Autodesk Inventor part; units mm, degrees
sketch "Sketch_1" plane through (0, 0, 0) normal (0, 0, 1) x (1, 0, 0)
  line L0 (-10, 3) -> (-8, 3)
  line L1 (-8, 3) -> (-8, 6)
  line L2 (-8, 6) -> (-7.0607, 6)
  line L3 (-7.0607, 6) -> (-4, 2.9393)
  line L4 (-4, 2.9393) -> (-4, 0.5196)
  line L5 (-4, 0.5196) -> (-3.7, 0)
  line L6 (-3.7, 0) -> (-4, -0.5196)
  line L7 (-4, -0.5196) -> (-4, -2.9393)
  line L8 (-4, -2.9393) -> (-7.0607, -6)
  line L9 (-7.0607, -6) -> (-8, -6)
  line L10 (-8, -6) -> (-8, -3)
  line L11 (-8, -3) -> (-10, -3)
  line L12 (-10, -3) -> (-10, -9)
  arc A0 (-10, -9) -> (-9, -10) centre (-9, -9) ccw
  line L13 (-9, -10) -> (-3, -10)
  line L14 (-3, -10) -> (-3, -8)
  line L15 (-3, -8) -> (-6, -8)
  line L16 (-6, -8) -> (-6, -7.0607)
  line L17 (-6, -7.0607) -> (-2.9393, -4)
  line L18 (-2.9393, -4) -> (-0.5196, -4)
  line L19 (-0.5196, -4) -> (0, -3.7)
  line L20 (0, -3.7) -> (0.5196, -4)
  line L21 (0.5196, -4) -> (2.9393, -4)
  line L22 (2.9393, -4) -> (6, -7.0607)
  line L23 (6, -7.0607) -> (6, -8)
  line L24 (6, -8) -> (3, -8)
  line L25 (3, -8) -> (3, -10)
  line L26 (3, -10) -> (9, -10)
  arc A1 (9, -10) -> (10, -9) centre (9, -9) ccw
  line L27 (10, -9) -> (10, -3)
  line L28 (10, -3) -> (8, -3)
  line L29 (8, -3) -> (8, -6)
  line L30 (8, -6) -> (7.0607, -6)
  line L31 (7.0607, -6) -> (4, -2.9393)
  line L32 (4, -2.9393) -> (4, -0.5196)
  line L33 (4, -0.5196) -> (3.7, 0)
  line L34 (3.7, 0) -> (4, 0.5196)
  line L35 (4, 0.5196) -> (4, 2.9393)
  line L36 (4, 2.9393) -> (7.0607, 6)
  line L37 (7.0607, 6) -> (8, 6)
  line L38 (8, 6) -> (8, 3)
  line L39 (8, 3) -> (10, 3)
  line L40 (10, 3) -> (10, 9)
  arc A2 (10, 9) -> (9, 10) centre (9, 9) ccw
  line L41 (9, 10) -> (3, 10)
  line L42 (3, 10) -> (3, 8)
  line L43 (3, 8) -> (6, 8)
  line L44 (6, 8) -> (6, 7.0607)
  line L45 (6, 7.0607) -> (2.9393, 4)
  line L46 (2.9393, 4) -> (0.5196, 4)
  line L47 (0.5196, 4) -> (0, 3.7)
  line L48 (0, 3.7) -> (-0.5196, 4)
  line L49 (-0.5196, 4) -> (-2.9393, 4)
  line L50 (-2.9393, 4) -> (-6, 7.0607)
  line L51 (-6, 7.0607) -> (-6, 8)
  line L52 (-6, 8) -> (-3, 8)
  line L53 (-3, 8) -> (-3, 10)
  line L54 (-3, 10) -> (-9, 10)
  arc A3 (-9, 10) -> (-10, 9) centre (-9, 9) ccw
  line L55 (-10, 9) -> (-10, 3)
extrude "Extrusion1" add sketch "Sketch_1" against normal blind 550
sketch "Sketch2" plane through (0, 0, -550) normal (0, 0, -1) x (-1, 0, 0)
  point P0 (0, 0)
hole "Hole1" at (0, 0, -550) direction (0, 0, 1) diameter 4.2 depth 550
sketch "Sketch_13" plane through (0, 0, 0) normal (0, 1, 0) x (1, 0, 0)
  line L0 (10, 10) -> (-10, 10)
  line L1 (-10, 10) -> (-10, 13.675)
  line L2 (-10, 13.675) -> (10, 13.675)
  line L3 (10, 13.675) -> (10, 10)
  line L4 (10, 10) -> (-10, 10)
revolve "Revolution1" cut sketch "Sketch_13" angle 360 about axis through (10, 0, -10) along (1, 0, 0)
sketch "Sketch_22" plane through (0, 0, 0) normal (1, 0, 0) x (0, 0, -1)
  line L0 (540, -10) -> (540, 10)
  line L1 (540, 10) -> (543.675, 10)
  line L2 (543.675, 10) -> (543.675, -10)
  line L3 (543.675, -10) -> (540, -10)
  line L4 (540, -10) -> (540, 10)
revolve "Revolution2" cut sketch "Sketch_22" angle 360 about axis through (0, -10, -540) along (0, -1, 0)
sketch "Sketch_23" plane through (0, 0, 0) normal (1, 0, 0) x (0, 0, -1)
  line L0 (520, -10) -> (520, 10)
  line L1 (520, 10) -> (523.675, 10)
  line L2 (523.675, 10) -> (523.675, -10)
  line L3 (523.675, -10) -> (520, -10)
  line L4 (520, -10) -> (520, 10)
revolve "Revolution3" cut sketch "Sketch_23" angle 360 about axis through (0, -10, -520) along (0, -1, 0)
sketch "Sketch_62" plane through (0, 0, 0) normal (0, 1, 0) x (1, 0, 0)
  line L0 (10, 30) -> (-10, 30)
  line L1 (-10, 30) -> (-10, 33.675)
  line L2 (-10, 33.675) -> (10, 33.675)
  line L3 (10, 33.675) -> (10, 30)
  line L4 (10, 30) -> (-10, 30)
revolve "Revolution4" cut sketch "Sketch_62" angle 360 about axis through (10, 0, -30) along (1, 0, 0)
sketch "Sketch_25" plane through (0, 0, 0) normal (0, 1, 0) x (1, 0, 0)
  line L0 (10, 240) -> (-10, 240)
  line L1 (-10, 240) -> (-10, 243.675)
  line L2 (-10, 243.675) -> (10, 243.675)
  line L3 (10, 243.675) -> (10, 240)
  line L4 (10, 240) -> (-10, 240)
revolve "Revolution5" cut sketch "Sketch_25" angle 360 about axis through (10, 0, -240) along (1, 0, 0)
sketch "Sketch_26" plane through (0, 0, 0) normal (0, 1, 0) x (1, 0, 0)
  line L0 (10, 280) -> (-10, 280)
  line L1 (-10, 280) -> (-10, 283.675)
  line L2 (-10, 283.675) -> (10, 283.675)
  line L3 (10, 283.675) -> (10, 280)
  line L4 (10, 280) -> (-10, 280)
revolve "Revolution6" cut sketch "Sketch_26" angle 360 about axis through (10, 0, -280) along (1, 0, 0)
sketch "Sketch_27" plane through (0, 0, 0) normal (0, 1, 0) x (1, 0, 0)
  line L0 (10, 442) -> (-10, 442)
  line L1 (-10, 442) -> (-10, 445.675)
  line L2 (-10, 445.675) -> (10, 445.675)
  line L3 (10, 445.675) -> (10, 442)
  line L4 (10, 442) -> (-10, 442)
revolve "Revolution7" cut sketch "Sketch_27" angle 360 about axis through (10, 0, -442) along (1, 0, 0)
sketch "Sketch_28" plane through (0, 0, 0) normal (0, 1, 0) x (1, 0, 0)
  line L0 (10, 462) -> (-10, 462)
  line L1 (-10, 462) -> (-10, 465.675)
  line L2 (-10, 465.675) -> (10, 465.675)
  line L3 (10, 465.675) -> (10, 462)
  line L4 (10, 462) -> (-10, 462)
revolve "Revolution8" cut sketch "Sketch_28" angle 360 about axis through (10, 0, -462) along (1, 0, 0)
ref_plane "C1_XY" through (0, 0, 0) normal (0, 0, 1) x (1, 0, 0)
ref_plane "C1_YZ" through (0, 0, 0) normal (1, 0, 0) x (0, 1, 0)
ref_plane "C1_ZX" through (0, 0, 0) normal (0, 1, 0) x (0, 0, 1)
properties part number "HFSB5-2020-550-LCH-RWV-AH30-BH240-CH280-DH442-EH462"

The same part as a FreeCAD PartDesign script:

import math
import FreeCAD as App
import Part
import Sketcher

V = App.Vector
Q = App.Units.Quantity


def add_polygon(sketch, points):
    """Adds a closed chain of lines whose ends are joined by coincident constraints."""
    first, n = sketch.GeometryCount, len(points)
    for a, b in zip(points, points[1:] + points[:1]):
        sketch.addGeometry(Part.LineSegment(App.Vector(*a, 0), App.Vector(*b, 0)), False)
    for i in range(n):
        sketch.addConstraint(Sketcher.Constraint("Coincident", first + i, 2, first + (i + 1) % n, 1))

doc = App.newDocument("Part")
params = doc.addObject("Spreadsheet::Sheet", "Params")
for row, (alias, value) in enumerate([
    ("sketch1_radius", "1 mm"),
    ("sketch1_width", "2 mm"),
    ("sketch1_width2", "6 mm"),
    ("sketch1_width3", "3 mm"),
    ("sketch1_length", "0.6 mm"),
    ("pad1_length", "550 mm"),
    ("sketch2_diameter", "4.2 mm"),
    ("hole_diameter", "4.2 mm"),
    ("hole_depth", "550 mm"),
    ("sketch3_width", "20 mm"),
    ("groove_angle", "360 deg"),
    ("sketch4_width", "20 mm"),
    ("groove2_angle", "360 deg"),
    ("sketch5_width", "20 mm"),
    ("groove3_angle", "360 deg"),
    ("sketch6_width", "20 mm"),
    ("groove4_angle", "360 deg"),
    ("sketch7_width", "20 mm"),
    ("groove5_angle", "360 deg"),
    ("sketch8_width", "20 mm"),
    ("groove6_angle", "360 deg"),
    ("sketch9_width", "20 mm"),
    ("groove7_angle", "360 deg"),
    ("sketch10_width", "20 mm"),
    ("groove8_angle", "360 deg"),
], start=1):
    params.set(f"A{row}", alias)
    params.set(f"B{row}", "=" + value)
    params.setAlias(f"B{row}", alias)

body = doc.addObject("PartDesign::Body", "Body")

sketch1 = doc.addObject("Sketcher::SketchObject", "Sketch")
body.addObject(sketch1)
sketch1.AttachmentSupport = (doc.XY_Plane, [""])
sketch1.MapMode = "FlatFace"
sketch1.addGeometry([
    Part.LineSegment(V(-10, 9, 0), V(-10, 3, 0)),
    Part.LineSegment(V(-10, 3, 0), V(-8, 3, 0)),
    Part.LineSegment(V(-8, 3, 0), V(-8, 6, 0)),
    Part.LineSegment(V(-8, 6, 0), V(-7.1, 6, 0)),
    Part.LineSegment(V(-7.1, 6, 0), V(-4, 2.9, 0)),
    Part.LineSegment(V(-4, 2.9, 0), V(-4, 0.5, 0)),
    Part.LineSegment(V(-4, 0.5, 0), V(-3.7, 0, 0)),
    Part.LineSegment(V(-3.7, 0, 0), V(-4, -0.5, 0)),
    Part.LineSegment(V(-4, -0.5, 0), V(-4, -2.9, 0)),
    Part.LineSegment(V(-4, -2.9, 0), V(-7.1, -6, 0)),
    Part.LineSegment(V(-7.1, -6, 0), V(-8, -6, 0)),
    Part.LineSegment(V(-8, -6, 0), V(-8, -3, 0)),
    Part.LineSegment(V(-8, -3, 0), V(-10, -3, 0)),
    Part.LineSegment(V(-10, -3, 0), V(-10, -9, 0)),
    Part.ArcOfCircle(Part.Circle(V(-9, -9, 0), V(0, 0, 1), 1), math.radians(180), math.radians(270)),
    Part.LineSegment(V(-9, -10, 0), V(-3, -10, 0)),
    Part.LineSegment(V(-3, -10, 0), V(-3, -8, 0)),
    Part.LineSegment(V(-3, -8, 0), V(-6, -8, 0)),
    Part.LineSegment(V(-6, -8, 0), V(-6, -7.1, 0)),
    Part.LineSegment(V(-6, -7.1, 0), V(-2.9, -4, 0)),
    Part.LineSegment(V(-2.9, -4, 0), V(-0.5, -4, 0)),
    Part.LineSegment(V(-0.5, -4, 0), V(0, -3.7, 0)),
    Part.LineSegment(V(0, -3.7, 0), V(0.5, -4, 0)),
    Part.LineSegment(V(0.5, -4, 0), V(2.9, -4, 0)),
    Part.LineSegment(V(2.9, -4, 0), V(6, -7.1, 0)),
    Part.LineSegment(V(6, -7.1, 0), V(6, -8, 0)),
    Part.LineSegment(V(6, -8, 0), V(3, -8, 0)),
    Part.LineSegment(V(3, -8, 0), V(3, -10, 0)),
    Part.LineSegment(V(3, -10, 0), V(9, -10, 0)),
    Part.ArcOfCircle(Part.Circle(V(9, -9, 0), V(0, 0, 1), 1), math.radians(-90), math.radians(0)),
    Part.LineSegment(V(10, -9, 0), V(10, -3, 0)),
    Part.LineSegment(V(10, -3, 0), V(8, -3, 0)),
    Part.LineSegment(V(8, -3, 0), V(8, -6, 0)),
    Part.LineSegment(V(8, -6, 0), V(7.1, -6, 0)),
    Part.LineSegment(V(7.1, -6, 0), V(4, -2.9, 0)),
    Part.LineSegment(V(4, -2.9, 0), V(4, -0.5, 0)),
    Part.LineSegment(V(4, -0.5, 0), V(3.7, 0, 0)),
    Part.LineSegment(V(3.7, 0, 0), V(4, 0.5, 0)),
    Part.LineSegment(V(4, 0.5, 0), V(4, 2.9, 0)),
    Part.LineSegment(V(4, 2.9, 0), V(7.1, 6, 0)),
    Part.LineSegment(V(7.1, 6, 0), V(8, 6, 0)),
    Part.LineSegment(V(8, 6, 0), V(8, 3, 0)),
    Part.LineSegment(V(8, 3, 0), V(10, 3, 0)),
    Part.LineSegment(V(10, 3, 0), V(10, 9, 0)),
    Part.ArcOfCircle(Part.Circle(V(9, 9, 0), V(0, 0, 1), 1), math.radians(0), math.radians(90)),
    Part.LineSegment(V(9, 10, 0), V(3, 10, 0)),
    Part.LineSegment(V(3, 10, 0), V(3, 8, 0)),
    Part.LineSegment(V(3, 8, 0), V(6, 8, 0)),
    Part.LineSegment(V(6, 8, 0), V(6, 7.1, 0)),
    Part.LineSegment(V(6, 7.1, 0), V(2.9, 4, 0)),
    Part.LineSegment(V(2.9, 4, 0), V(0.5, 4, 0)),
    Part.LineSegment(V(0.5, 4, 0), V(0, 3.7, 0)),
    Part.LineSegment(V(0, 3.7, 0), V(-0.5, 4, 0)),
    Part.LineSegment(V(-0.5, 4, 0), V(-2.9, 4, 0)),
    Part.LineSegment(V(-2.9, 4, 0), V(-6, 7.1, 0)),
    Part.LineSegment(V(-6, 7.1, 0), V(-6, 8, 0)),
    Part.LineSegment(V(-6, 8, 0), V(-3, 8, 0)),
    Part.LineSegment(V(-3, 8, 0), V(-3, 10, 0)),
    Part.LineSegment(V(-3, 10, 0), V(-9, 10, 0)),
    Part.ArcOfCircle(Part.Circle(V(-9, 9, 0), V(0, 0, 1), 1), math.radians(90), math.radians(180)),
], False)
sketch1.addConstraint([
    Sketcher.Constraint("Coincident", 0, 2, 1, 1),
    Sketcher.Constraint("Coincident", 1, 2, 2, 1),
    Sketcher.Constraint("Coincident", 2, 2, 3, 1),
    Sketcher.Constraint("Coincident", 3, 2, 4, 1),
    Sketcher.Constraint("Coincident", 4, 2, 5, 1),
    Sketcher.Constraint("Coincident", 5, 2, 6, 1),
    Sketcher.Constraint("Coincident", 6, 2, 7, 1),
    Sketcher.Constraint("Coincident", 7, 2, 8, 1),
    Sketcher.Constraint("Coincident", 8, 2, 9, 1),
    Sketcher.Constraint("Coincident", 9, 2, 10, 1),
    Sketcher.Constraint("Coincident", 10, 2, 11, 1),
    Sketcher.Constraint("Coincident", 11, 2, 12, 1),
    Sketcher.Constraint("Coincident", 12, 2, 13, 1),
    Sketcher.Constraint("Tangent", 13, 2, 14, 1),
    Sketcher.Constraint("Tangent", 14, 2, 15, 1),
    Sketcher.Constraint("Coincident", 15, 2, 16, 1),
    Sketcher.Constraint("Coincident", 16, 2, 17, 1),
    Sketcher.Constraint("Coincident", 17, 2, 18, 1),
    Sketcher.Constraint("Coincident", 18, 2, 19, 1),
    Sketcher.Constraint("Coincident", 19, 2, 20, 1),
    Sketcher.Constraint("Coincident", 20, 2, 21, 1),
    Sketcher.Constraint("Coincident", 21, 2, 22, 1),
    Sketcher.Constraint("Coincident", 22, 2, 23, 1),
    Sketcher.Constraint("Coincident", 23, 2, 24, 1),
    Sketcher.Constraint("Coincident", 24, 2, 25, 1),
    Sketcher.Constraint("Coincident", 25, 2, 26, 1),
    Sketcher.Constraint("Coincident", 26, 2, 27, 1),
    Sketcher.Constraint("Coincident", 27, 2, 28, 1),
    Sketcher.Constraint("Tangent", 28, 2, 29, 1),
    Sketcher.Constraint("Tangent", 29, 2, 30, 1),
    Sketcher.Constraint("Coincident", 30, 2, 31, 1),
    Sketcher.Constraint("Coincident", 31, 2, 32, 1),
    Sketcher.Constraint("Coincident", 32, 2, 33, 1),
    Sketcher.Constraint("Coincident", 33, 2, 34, 1),
    Sketcher.Constraint("Coincident", 34, 2, 35, 1),
    Sketcher.Constraint("Coincident", 35, 2, 36, 1),
    Sketcher.Constraint("Coincident", 36, 2, 37, 1),
    Sketcher.Constraint("Coincident", 37, 2, 38, 1),
    Sketcher.Constraint("Coincident", 38, 2, 39, 1),
    Sketcher.Constraint("Coincident", 39, 2, 40, 1),
    Sketcher.Constraint("Coincident", 40, 2, 41, 1),
    Sketcher.Constraint("Coincident", 41, 2, 42, 1),
    Sketcher.Constraint("Coincident", 42, 2, 43, 1),
    Sketcher.Constraint("Tangent", 43, 2, 44, 1),
    Sketcher.Constraint("Tangent", 44, 2, 45, 1),
    Sketcher.Constraint("Coincident", 45, 2, 46, 1),
    Sketcher.Constraint("Coincident", 46, 2, 47, 1),
    Sketcher.Constraint("Coincident", 47, 2, 48, 1),
    Sketcher.Constraint("Coincident", 48, 2, 49, 1),
    Sketcher.Constraint("Coincident", 49, 2, 50, 1),
    Sketcher.Constraint("Coincident", 50, 2, 51, 1),
    Sketcher.Constraint("Coincident", 51, 2, 52, 1),
    Sketcher.Constraint("Coincident", 52, 2, 53, 1),
    Sketcher.Constraint("Coincident", 53, 2, 54, 1),
    Sketcher.Constraint("Coincident", 54, 2, 55, 1),
    Sketcher.Constraint("Coincident", 55, 2, 56, 1),
    Sketcher.Constraint("Coincident", 56, 2, 57, 1),
    Sketcher.Constraint("Coincident", 57, 2, 58, 1),
    Sketcher.Constraint("Tangent", 58, 2, 59, 1),
    Sketcher.Constraint("Tangent", 59, 2, 0, 1),
    Sketcher.Constraint("Vertical", 0),
    Sketcher.Constraint("Horizontal", 1),
    Sketcher.Constraint("Vertical", 2),
    Sketcher.Constraint("Horizontal", 3),
    Sketcher.Constraint("Vertical", 5),
    Sketcher.Constraint("Vertical", 8),
    Sketcher.Constraint("Horizontal", 10),
    Sketcher.Constraint("Vertical", 11),
    Sketcher.Constraint("Horizontal", 12),
    Sketcher.Constraint("Vertical", 13),
    Sketcher.Constraint("Horizontal", 15),
    Sketcher.Constraint("Vertical", 16),
    Sketcher.Constraint("Horizontal", 17),
    Sketcher.Constraint("Vertical", 18),
    Sketcher.Constraint("Horizontal", 20),
    Sketcher.Constraint("Horizontal", 23),
    Sketcher.Constraint("Vertical", 25),
    Sketcher.Constraint("Horizontal", 26),
    Sketcher.Constraint("Vertical", 27),
    Sketcher.Constraint("Horizontal", 28),
    Sketcher.Constraint("Vertical", 30),
    Sketcher.Constraint("Horizontal", 31),
    Sketcher.Constraint("Vertical", 32),
    Sketcher.Constraint("Horizontal", 33),
    Sketcher.Constraint("Vertical", 35),
    Sketcher.Constraint("Vertical", 38),
    Sketcher.Constraint("Horizontal", 40),
    Sketcher.Constraint("Vertical", 41),
    Sketcher.Constraint("Horizontal", 42),
    Sketcher.Constraint("Vertical", 43),
    Sketcher.Constraint("Horizontal", 45),
    Sketcher.Constraint("Vertical", 46),
    Sketcher.Constraint("Horizontal", 47),
    Sketcher.Constraint("Vertical", 48),
    Sketcher.Constraint("Horizontal", 50),
    Sketcher.Constraint("Horizontal", 53),
    Sketcher.Constraint("Vertical", 55),
    Sketcher.Constraint("Horizontal", 56),
    Sketcher.Constraint("Vertical", 57),
    Sketcher.Constraint("Horizontal", 58),
    Sketcher.Constraint("Equal", 14, 29),
    Sketcher.Constraint("Equal", 29, 44),
    Sketcher.Constraint("Equal", 44, 59),
    Sketcher.Constraint("Symmetric", 14, 3, 44, 3, -1, 1),
    Sketcher.Constraint("Symmetric", 29, 3, 59, 3, -1, 1),
    Sketcher.Constraint("Symmetric", 1, 2, 31, 2, -1, 1),
    Sketcher.Constraint("Symmetric", 3, 2, 33, 2, -1, 1),
    Sketcher.Constraint("Symmetric", 4, 2, 34, 2, -1, 1),
    Sketcher.Constraint("Symmetric", 6, 2, 36, 2, -1, 1),
    Sketcher.Constraint("Symmetric", 7, 2, 37, 2, -1, 1),
    Sketcher.Constraint("Symmetric", 9, 2, 39, 2, -1, 1),
    Sketcher.Constraint("Symmetric", 11, 2, 41, 2, -1, 1),
    Sketcher.Constraint("Symmetric", 16, 2, 46, 2, -1, 1),
    Sketcher.Constraint("Symmetric", 18, 2, 48, 2, -1, 1),
    Sketcher.Constraint("Symmetric", 19, 2, 49, 2, -1, 1),
    Sketcher.Constraint("Symmetric", 21, 2, 51, 2, -1, 1),
    Sketcher.Constraint("Symmetric", 22, 2, 52, 2, -1, 1),
    Sketcher.Constraint("Symmetric", 24, 2, 54, 2, -1, 1),
    Sketcher.Constraint("Symmetric", 26, 2, 56, 2, -1, 1),
    Sketcher.Constraint("Symmetric", 14, 3, 29, 3, -2),
    Sketcher.Constraint("Symmetric", 20, 2, 22, 2, -2),
    Sketcher.Constraint("Symmetric", 18, 2, 24, 2, -2),
    Sketcher.Constraint("Symmetric", 16, 2, 26, 2, -2),
    Sketcher.Constraint("Symmetric", 11, 2, 31, 2, -2),
    Sketcher.Constraint("Symmetric", 9, 2, 33, 2, -2),
    Sketcher.Constraint("Symmetric", 8, 2, 34, 2, -2),
    Sketcher.Constraint("PointOnObject", 6, 2, -1),
    Sketcher.Constraint("PointOnObject", 21, 2, -2),
    Sketcher.Constraint("Perpendicular", 4, 9),
    Sketcher.Constraint("Parallel", 9, 19),
    Sketcher.Constraint("Perpendicular", 6, 21),
    Sketcher.Constraint("Perpendicular", 7, 22),
    Sketcher.Constraint("Perpendicular", 19, 24),
    Sketcher.Constraint("Perpendicular", 21, 36),
    Sketcher.Constraint("Perpendicular", 34, 39),
    Sketcher.Constraint("Perpendicular", 36, 51),
    Sketcher.Constraint("Perpendicular", 49, 54),
    Sketcher.Constraint("Equal", 58, 0),
    Sketcher.Constraint("Equal", 56, 2),
    Sketcher.Constraint("Equal", 53, 5),
    Sketcher.Constraint("Equal", 42, 16),
    Sketcher.Constraint("Equal", 40, 18),
    Sketcher.Constraint("Equal", 9, 19),
    Sketcher.Constraint("Equal", 7, 21),
    Sketcher.Constraint("Radius", 14, Q("1 mm")),
    Sketcher.Constraint("DistanceX", 1, 1, 1, 2, Q("2 mm")),
    Sketcher.Constraint("DistanceX", 15, 1, 15, 2, Q("6 mm")),
    Sketcher.Constraint("DistanceX", 17, 2, 17, 1, Q("3 mm")),
    Sketcher.Constraint("Angle", 6, Q("-59.9993 deg")),
    Sketcher.Constraint("DistanceX", 14, 3, -1, 1, Q("9 mm")),
    Sketcher.Constraint("DistanceX", 4, 2, -1, 1, Q("4 mm")),
    Sketcher.Constraint("Distance", 6, Q("0.6 mm")),
    Sketcher.Constraint("DistanceX", 3, 1, 3, 2, Q("0.9393 mm")),
])
sketch1.setExpression("Constraints[144]", "Params.sketch1_radius")
sketch1.setExpression("Constraints[145]", "Params.sketch1_width")
sketch1.setExpression("Constraints[146]", "Params.sketch1_width2")
sketch1.setExpression("Constraints[147]", "Params.sketch1_width3")
sketch1.setExpression("Constraints[151]", "Params.sketch1_length")
pad1 = doc.addObject("PartDesign::Pad", "Pad")
body.addObject(pad1)
pad1.Profile = sketch1
pad1.setExpression("Length", "Params.pad1_length")
pad1.Reversed = True

sketch2 = doc.addObject("Sketcher::SketchObject", "Sketch001")
body.addObject(sketch2)
sketch2.AttachmentSupport = (doc.XY_Plane, [""])
sketch2.MapMode = "FlatFace"
sketch2.AttachmentOffset = App.Placement(V(0, 0, -550), App.Rotation())
sketch2.addGeometry(Part.Circle(V(0, 0, 0), V(0, 0, 1), 2.1), False)
sketch2.addConstraint([
    Sketcher.Constraint("Coincident", 0, 3, -1, 1),
    Sketcher.Constraint("Diameter", 0, Q("4.2 mm")),
])
sketch2.setExpression("Constraints[1]", "Params.sketch2_diameter")
doc.recompute()
hole = doc.addObject("PartDesign::Hole", "Hole")
body.addObject(hole)
hole.Profile = sketch2
hole.ThreadType = "None"
hole.setExpression("Diameter", "Params.hole_diameter")
hole.DepthType = "Dimension"
hole.setExpression("Depth", "Params.hole_depth")
hole.DrillPoint = "Flat"
hole.Reversed = True

sketch3 = doc.addObject("Sketcher::SketchObject", "Sketch002")
body.addObject(sketch3)
sketch3.AttachmentSupport = (doc.XZ_Plane, [""])
sketch3.MapMode = "FlatFace"
add_polygon(sketch3, [(-10, -10), (10, -10), (10, -13.7), (-10, -13.7)])
sketch3.addGeometry(Part.LineSegment(V(-10, -10, 0), V(10, -10, 0)), True)
sketch3.addConstraint([
    Sketcher.Constraint("Horizontal", 0),
    Sketcher.Constraint("Vertical", 1),
    Sketcher.Constraint("Horizontal", 2),
    Sketcher.Constraint("Vertical", 3),
    Sketcher.Constraint("Horizontal", 4),
    Sketcher.Constraint("Coincident", 4, 1, 3, 2),
    Sketcher.Constraint("Vertical", 1, 2, 4, 2),
    Sketcher.Constraint("DistanceX", 0, 1, 0, 2, Q("20 mm")),
    Sketcher.Constraint("DistanceX", -1, 1, 0, 2, Q("10 mm")),
    Sketcher.Constraint("DistanceY", 0, 2, -1, 1, Q("10 mm")),
    Sketcher.Constraint("DistanceY", 1, 2, 1, 1, Q("3.675 mm")),
])
sketch3.setExpression("Constraints[11]", "Params.sketch3_width")
groove = doc.addObject("PartDesign::Groove", "Groove")
body.addObject(groove)
groove.Profile = sketch3
groove.ReferenceAxis = (sketch3, ["Axis0"])
groove.setExpression("Angle", "Params.groove_angle")

sketch4 = doc.addObject("Sketcher::SketchObject", "Sketch003")
body.addObject(sketch4)
sketch4.AttachmentSupport = (doc.YZ_Plane, [""])
sketch4.MapMode = "FlatFace"
add_polygon(sketch4, [(10, -540), (-10, -540), (-10, -543.7), (10, -543.7)])
sketch4.addGeometry(Part.LineSegment(V(10, -540, 0), V(-10, -540, 0)), True)
sketch4.addConstraint([
    Sketcher.Constraint("Horizontal", 0),
    Sketcher.Constraint("Vertical", 1),
    Sketcher.Constraint("Horizontal", 2),
    Sketcher.Constraint("Vertical", 3),
    Sketcher.Constraint("Horizontal", 4),
    Sketcher.Constraint("Coincident", 4, 1, 3, 2),
    Sketcher.Constraint("Vertical", 1, 2, 4, 2),
    Sketcher.Constraint("DistanceX", 0, 2, 0, 1, Q("20 mm")),
    Sketcher.Constraint("DistanceX", 0, 2, -1, 1, Q("10 mm")),
    Sketcher.Constraint("DistanceY", 0, 2, -1, 1, Q("540 mm")),
    Sketcher.Constraint("DistanceY", 1, 2, 1, 1, Q("3.675 mm")),
])
sketch4.setExpression("Constraints[11]", "Params.sketch4_width")
groove2 = doc.addObject("PartDesign::Groove", "Groove001")
body.addObject(groove2)
groove2.Profile = sketch4
groove2.ReferenceAxis = (sketch4, ["Axis0"])
groove2.setExpression("Angle", "Params.groove2_angle")

sketch5 = doc.addObject("Sketcher::SketchObject", "Sketch004")
body.addObject(sketch5)
sketch5.AttachmentSupport = (doc.YZ_Plane, [""])
sketch5.MapMode = "FlatFace"
add_polygon(sketch5, [(10, -520), (-10, -520), (-10, -523.7), (10, -523.7)])
sketch5.addGeometry(Part.LineSegment(V(10, -520, 0), V(-10, -520, 0)), True)
sketch5.addConstraint([
    Sketcher.Constraint("Horizontal", 0),
    Sketcher.Constraint("Vertical", 1),
    Sketcher.Constraint("Horizontal", 2),
    Sketcher.Constraint("Vertical", 3),
    Sketcher.Constraint("Horizontal", 4),
    Sketcher.Constraint("Coincident", 4, 1, 3, 2),
    Sketcher.Constraint("Vertical", 1, 2, 4, 2),
    Sketcher.Constraint("DistanceX", 0, 2, 0, 1, Q("20 mm")),
    Sketcher.Constraint("DistanceX", 0, 2, -1, 1, Q("10 mm")),
    Sketcher.Constraint("DistanceY", 0, 2, -1, 1, Q("520 mm")),
    Sketcher.Constraint("DistanceY", 1, 2, 1, 1, Q("3.675 mm")),
])
sketch5.setExpression("Constraints[11]", "Params.sketch5_width")
groove3 = doc.addObject("PartDesign::Groove", "Groove002")
body.addObject(groove3)
groove3.Profile = sketch5
groove3.ReferenceAxis = (sketch5, ["Axis0"])
groove3.setExpression("Angle", "Params.groove3_angle")

sketch6 = doc.addObject("Sketcher::SketchObject", "Sketch005")
body.addObject(sketch6)
sketch6.AttachmentSupport = (doc.XZ_Plane, [""])
sketch6.MapMode = "FlatFace"
add_polygon(sketch6, [(-10, -30), (10, -30), (10, -33.7), (-10, -33.7)])
sketch6.addGeometry(Part.LineSegment(V(-10, -30, 0), V(10, -30, 0)), True)
sketch6.addConstraint([
    Sketcher.Constraint("Horizontal", 0),
    Sketcher.Constraint("Vertical", 1),
    Sketcher.Constraint("Horizontal", 2),
    Sketcher.Constraint("Vertical", 3),
    Sketcher.Constraint("Horizontal", 4),
    Sketcher.Constraint("Coincident", 4, 1, 3, 2),
    Sketcher.Constraint("Vertical", 1, 2, 4, 2),
    Sketcher.Constraint("DistanceX", 0, 1, 0, 2, Q("20 mm")),
    Sketcher.Constraint("DistanceX", -1, 1, 0, 2, Q("10 mm")),
    Sketcher.Constraint("DistanceY", 0, 2, -1, 1, Q("30 mm")),
    Sketcher.Constraint("DistanceY", 1, 2, 1, 1, Q("3.675 mm")),
])
sketch6.setExpression("Constraints[11]", "Params.sketch6_width")
groove4 = doc.addObject("PartDesign::Groove", "Groove003")
body.addObject(groove4)
groove4.Profile = sketch6
groove4.ReferenceAxis = (sketch6, ["Axis0"])
groove4.setExpression("Angle", "Params.groove4_angle")

sketch7 = doc.addObject("Sketcher::SketchObject", "Sketch006")
body.addObject(sketch7)
sketch7.AttachmentSupport = (doc.XZ_Plane, [""])
sketch7.MapMode = "FlatFace"
add_polygon(sketch7, [(-10, -240), (10, -240), (10, -243.7), (-10, -243.7)])
sketch7.addGeometry(Part.LineSegment(V(-10, -240, 0), V(10, -240, 0)), True)
sketch7.addConstraint([
    Sketcher.Constraint("Horizontal", 0),
    Sketcher.Constraint("Vertical", 1),
    Sketcher.Constraint("Horizontal", 2),
    Sketcher.Constraint("Vertical", 3),
    Sketcher.Constraint("Horizontal", 4),
    Sketcher.Constraint("Coincident", 4, 1, 3, 2),
    Sketcher.Constraint("Vertical", 1, 2, 4, 2),
    Sketcher.Constraint("DistanceX", 0, 1, 0, 2, Q("20 mm")),
    Sketcher.Constraint("DistanceX", -1, 1, 0, 2, Q("10 mm")),
    Sketcher.Constraint("DistanceY", 0, 2, -1, 1, Q("240 mm")),
    Sketcher.Constraint("DistanceY", 1, 2, 1, 1, Q("3.675 mm")),
])
sketch7.setExpression("Constraints[11]", "Params.sketch7_width")
groove5 = doc.addObject("PartDesign::Groove", "Groove004")
body.addObject(groove5)
groove5.Profile = sketch7
groove5.ReferenceAxis = (sketch7, ["Axis0"])
groove5.setExpression("Angle", "Params.groove5_angle")

sketch8 = doc.addObject("Sketcher::SketchObject", "Sketch007")
body.addObject(sketch8)
sketch8.AttachmentSupport = (doc.XZ_Plane, [""])
sketch8.MapMode = "FlatFace"
add_polygon(sketch8, [(-10, -280), (10, -280), (10, -283.7), (-10, -283.7)])
sketch8.addGeometry(Part.LineSegment(V(-10, -280, 0), V(10, -280, 0)), True)
sketch8.addConstraint([
    Sketcher.Constraint("Horizontal", 0),
    Sketcher.Constraint("Vertical", 1),
    Sketcher.Constraint("Horizontal", 2),
    Sketcher.Constraint("Vertical", 3),
    Sketcher.Constraint("Horizontal", 4),
    Sketcher.Constraint("Coincident", 4, 1, 3, 2),
    Sketcher.Constraint("Vertical", 1, 2, 4, 2),
    Sketcher.Constraint("DistanceX", 0, 1, 0, 2, Q("20 mm")),
    Sketcher.Constraint("DistanceX", -1, 1, 0, 2, Q("10 mm")),
    Sketcher.Constraint("DistanceY", 0, 2, -1, 1, Q("280 mm")),
    Sketcher.Constraint("DistanceY", 1, 2, 1, 1, Q("3.675 mm")),
])
sketch8.setExpression("Constraints[11]", "Params.sketch8_width")
groove6 = doc.addObject("PartDesign::Groove", "Groove005")
body.addObject(groove6)
groove6.Profile = sketch8
groove6.ReferenceAxis = (sketch8, ["Axis0"])
groove6.setExpression("Angle", "Params.groove6_angle")

sketch9 = doc.addObject("Sketcher::SketchObject", "Sketch008")
body.addObject(sketch9)
sketch9.AttachmentSupport = (doc.XZ_Plane, [""])
sketch9.MapMode = "FlatFace"
add_polygon(sketch9, [(-10, -442), (10, -442), (10, -445.7), (-10, -445.7)])
sketch9.addGeometry(Part.LineSegment(V(-10, -442, 0), V(10, -442, 0)), True)
sketch9.addConstraint([
    Sketcher.Constraint("Horizontal", 0),
    Sketcher.Constraint("Vertical", 1),
    Sketcher.Constraint("Horizontal", 2),
    Sketcher.Constraint("Vertical", 3),
    Sketcher.Constraint("Horizontal", 4),
    Sketcher.Constraint("Coincident", 4, 1, 3, 2),
    Sketcher.Constraint("Vertical", 1, 2, 4, 2),
    Sketcher.Constraint("DistanceX", 0, 1, 0, 2, Q("20 mm")),
    Sketcher.Constraint("DistanceX", -1, 1, 0, 2, Q("10 mm")),
    Sketcher.Constraint("DistanceY", 0, 2, -1, 1, Q("442 mm")),
    Sketcher.Constraint("DistanceY", 1, 2, 1, 1, Q("3.675 mm")),
])
sketch9.setExpression("Constraints[11]", "Params.sketch9_width")
groove7 = doc.addObject("PartDesign::Groove", "Groove006")
body.addObject(groove7)
groove7.Profile = sketch9
groove7.ReferenceAxis = (sketch9, ["Axis0"])
groove7.setExpression("Angle", "Params.groove7_angle")

sketch10 = doc.addObject("Sketcher::SketchObject", "Sketch009")
body.addObject(sketch10)
sketch10.AttachmentSupport = (doc.XZ_Plane, [""])
sketch10.MapMode = "FlatFace"
add_polygon(sketch10, [(-10, -462), (10, -462), (10, -465.7), (-10, -465.7)])
sketch10.addGeometry(Part.LineSegment(V(-10, -462, 0), V(10, -462, 0)), True)
sketch10.addConstraint([
    Sketcher.Constraint("Horizontal", 0),
    Sketcher.Constraint("Vertical", 1),
    Sketcher.Constraint("Horizontal", 2),
    Sketcher.Constraint("Vertical", 3),
    Sketcher.Constraint("Horizontal", 4),
    Sketcher.Constraint("Coincident", 4, 1, 3, 2),
    Sketcher.Constraint("Vertical", 1, 2, 4, 2),
    Sketcher.Constraint("DistanceX", 0, 1, 0, 2, Q("20 mm")),
    Sketcher.Constraint("DistanceX", -1, 1, 0, 2, Q("10 mm")),
    Sketcher.Constraint("DistanceY", 0, 2, -1, 1, Q("462 mm")),
    Sketcher.Constraint("DistanceY", 1, 2, 1, 1, Q("3.675 mm")),
])
sketch10.setExpression("Constraints[11]", "Params.sketch10_width")
groove8 = doc.addObject("PartDesign::Groove", "Groove007")
body.addObject(groove8)
groove8.Profile = sketch10
groove8.ReferenceAxis = (sketch10, ["Axis0"])
groove8.setExpression("Angle", "Params.groove8_angle")

doc.recompute()
